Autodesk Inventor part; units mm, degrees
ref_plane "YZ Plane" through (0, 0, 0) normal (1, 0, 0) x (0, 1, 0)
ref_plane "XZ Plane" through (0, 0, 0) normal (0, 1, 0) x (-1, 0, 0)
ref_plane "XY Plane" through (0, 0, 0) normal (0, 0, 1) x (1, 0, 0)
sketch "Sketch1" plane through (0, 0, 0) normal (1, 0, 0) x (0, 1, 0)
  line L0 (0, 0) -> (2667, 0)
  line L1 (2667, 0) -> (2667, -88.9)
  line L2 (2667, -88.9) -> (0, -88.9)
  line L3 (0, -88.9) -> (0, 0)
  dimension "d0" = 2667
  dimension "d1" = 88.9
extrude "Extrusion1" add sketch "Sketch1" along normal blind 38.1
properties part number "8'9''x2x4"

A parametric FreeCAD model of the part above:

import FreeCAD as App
import Part
import Sketcher
from FreeCAD import Vector
Q = App.Units.Quantity


def add_polygon(sketch, points):
    """Adds a closed chain of lines whose ends are joined by coincident constraints."""
    first, n = sketch.GeometryCount, len(points)
    for a, b in zip(points, points[1:] + points[:1]):
        sketch.addGeometry(Part.LineSegment(App.Vector(*a, 0), App.Vector(*b, 0)), False)
    for i in range(n):
        sketch.addConstraint(Sketcher.Constraint("Coincident", first + i, 2, first + (i + 1) % n, 1))

doc = App.newDocument("Part")
body = doc.addObject("PartDesign::Body", "Body")

# Sketch on YZ plane
sketch1 = body.newObject("Sketcher::SketchObject", "Sketch")
sketch1.AttachmentSupport = (doc.getObject("YZ_Plane"), [""])
sketch1.MapMode = "FlatFace"
add_polygon(sketch1, [(2667, 0), (0, 0), (0, -89), (2667, -89)])  # lines 0-3
sketch1.addConstraint(Sketcher.Constraint("Horizontal", 0))
sketch1.addConstraint(Sketcher.Constraint("Vertical", 1))
sketch1.addConstraint(Sketcher.Constraint("Horizontal", 2))
sketch1.addConstraint(Sketcher.Constraint("Vertical", 3))
sketch1.addConstraint(Sketcher.Constraint("Coincident", 0, 2, -1, 1))
sketch1.addConstraint(Sketcher.Constraint("DistanceX", 0, 2, 0, 1, Q("105 in")))
sketch1.addConstraint(Sketcher.Constraint("DistanceY", 1, 2, 1, 1, Q("3.5 in")))
pad1 = body.newObject("PartDesign::Pad", "Pad")
pad1.Profile = sketch1
pad1.Length = Q("1.5 in")

doc.recompute()
